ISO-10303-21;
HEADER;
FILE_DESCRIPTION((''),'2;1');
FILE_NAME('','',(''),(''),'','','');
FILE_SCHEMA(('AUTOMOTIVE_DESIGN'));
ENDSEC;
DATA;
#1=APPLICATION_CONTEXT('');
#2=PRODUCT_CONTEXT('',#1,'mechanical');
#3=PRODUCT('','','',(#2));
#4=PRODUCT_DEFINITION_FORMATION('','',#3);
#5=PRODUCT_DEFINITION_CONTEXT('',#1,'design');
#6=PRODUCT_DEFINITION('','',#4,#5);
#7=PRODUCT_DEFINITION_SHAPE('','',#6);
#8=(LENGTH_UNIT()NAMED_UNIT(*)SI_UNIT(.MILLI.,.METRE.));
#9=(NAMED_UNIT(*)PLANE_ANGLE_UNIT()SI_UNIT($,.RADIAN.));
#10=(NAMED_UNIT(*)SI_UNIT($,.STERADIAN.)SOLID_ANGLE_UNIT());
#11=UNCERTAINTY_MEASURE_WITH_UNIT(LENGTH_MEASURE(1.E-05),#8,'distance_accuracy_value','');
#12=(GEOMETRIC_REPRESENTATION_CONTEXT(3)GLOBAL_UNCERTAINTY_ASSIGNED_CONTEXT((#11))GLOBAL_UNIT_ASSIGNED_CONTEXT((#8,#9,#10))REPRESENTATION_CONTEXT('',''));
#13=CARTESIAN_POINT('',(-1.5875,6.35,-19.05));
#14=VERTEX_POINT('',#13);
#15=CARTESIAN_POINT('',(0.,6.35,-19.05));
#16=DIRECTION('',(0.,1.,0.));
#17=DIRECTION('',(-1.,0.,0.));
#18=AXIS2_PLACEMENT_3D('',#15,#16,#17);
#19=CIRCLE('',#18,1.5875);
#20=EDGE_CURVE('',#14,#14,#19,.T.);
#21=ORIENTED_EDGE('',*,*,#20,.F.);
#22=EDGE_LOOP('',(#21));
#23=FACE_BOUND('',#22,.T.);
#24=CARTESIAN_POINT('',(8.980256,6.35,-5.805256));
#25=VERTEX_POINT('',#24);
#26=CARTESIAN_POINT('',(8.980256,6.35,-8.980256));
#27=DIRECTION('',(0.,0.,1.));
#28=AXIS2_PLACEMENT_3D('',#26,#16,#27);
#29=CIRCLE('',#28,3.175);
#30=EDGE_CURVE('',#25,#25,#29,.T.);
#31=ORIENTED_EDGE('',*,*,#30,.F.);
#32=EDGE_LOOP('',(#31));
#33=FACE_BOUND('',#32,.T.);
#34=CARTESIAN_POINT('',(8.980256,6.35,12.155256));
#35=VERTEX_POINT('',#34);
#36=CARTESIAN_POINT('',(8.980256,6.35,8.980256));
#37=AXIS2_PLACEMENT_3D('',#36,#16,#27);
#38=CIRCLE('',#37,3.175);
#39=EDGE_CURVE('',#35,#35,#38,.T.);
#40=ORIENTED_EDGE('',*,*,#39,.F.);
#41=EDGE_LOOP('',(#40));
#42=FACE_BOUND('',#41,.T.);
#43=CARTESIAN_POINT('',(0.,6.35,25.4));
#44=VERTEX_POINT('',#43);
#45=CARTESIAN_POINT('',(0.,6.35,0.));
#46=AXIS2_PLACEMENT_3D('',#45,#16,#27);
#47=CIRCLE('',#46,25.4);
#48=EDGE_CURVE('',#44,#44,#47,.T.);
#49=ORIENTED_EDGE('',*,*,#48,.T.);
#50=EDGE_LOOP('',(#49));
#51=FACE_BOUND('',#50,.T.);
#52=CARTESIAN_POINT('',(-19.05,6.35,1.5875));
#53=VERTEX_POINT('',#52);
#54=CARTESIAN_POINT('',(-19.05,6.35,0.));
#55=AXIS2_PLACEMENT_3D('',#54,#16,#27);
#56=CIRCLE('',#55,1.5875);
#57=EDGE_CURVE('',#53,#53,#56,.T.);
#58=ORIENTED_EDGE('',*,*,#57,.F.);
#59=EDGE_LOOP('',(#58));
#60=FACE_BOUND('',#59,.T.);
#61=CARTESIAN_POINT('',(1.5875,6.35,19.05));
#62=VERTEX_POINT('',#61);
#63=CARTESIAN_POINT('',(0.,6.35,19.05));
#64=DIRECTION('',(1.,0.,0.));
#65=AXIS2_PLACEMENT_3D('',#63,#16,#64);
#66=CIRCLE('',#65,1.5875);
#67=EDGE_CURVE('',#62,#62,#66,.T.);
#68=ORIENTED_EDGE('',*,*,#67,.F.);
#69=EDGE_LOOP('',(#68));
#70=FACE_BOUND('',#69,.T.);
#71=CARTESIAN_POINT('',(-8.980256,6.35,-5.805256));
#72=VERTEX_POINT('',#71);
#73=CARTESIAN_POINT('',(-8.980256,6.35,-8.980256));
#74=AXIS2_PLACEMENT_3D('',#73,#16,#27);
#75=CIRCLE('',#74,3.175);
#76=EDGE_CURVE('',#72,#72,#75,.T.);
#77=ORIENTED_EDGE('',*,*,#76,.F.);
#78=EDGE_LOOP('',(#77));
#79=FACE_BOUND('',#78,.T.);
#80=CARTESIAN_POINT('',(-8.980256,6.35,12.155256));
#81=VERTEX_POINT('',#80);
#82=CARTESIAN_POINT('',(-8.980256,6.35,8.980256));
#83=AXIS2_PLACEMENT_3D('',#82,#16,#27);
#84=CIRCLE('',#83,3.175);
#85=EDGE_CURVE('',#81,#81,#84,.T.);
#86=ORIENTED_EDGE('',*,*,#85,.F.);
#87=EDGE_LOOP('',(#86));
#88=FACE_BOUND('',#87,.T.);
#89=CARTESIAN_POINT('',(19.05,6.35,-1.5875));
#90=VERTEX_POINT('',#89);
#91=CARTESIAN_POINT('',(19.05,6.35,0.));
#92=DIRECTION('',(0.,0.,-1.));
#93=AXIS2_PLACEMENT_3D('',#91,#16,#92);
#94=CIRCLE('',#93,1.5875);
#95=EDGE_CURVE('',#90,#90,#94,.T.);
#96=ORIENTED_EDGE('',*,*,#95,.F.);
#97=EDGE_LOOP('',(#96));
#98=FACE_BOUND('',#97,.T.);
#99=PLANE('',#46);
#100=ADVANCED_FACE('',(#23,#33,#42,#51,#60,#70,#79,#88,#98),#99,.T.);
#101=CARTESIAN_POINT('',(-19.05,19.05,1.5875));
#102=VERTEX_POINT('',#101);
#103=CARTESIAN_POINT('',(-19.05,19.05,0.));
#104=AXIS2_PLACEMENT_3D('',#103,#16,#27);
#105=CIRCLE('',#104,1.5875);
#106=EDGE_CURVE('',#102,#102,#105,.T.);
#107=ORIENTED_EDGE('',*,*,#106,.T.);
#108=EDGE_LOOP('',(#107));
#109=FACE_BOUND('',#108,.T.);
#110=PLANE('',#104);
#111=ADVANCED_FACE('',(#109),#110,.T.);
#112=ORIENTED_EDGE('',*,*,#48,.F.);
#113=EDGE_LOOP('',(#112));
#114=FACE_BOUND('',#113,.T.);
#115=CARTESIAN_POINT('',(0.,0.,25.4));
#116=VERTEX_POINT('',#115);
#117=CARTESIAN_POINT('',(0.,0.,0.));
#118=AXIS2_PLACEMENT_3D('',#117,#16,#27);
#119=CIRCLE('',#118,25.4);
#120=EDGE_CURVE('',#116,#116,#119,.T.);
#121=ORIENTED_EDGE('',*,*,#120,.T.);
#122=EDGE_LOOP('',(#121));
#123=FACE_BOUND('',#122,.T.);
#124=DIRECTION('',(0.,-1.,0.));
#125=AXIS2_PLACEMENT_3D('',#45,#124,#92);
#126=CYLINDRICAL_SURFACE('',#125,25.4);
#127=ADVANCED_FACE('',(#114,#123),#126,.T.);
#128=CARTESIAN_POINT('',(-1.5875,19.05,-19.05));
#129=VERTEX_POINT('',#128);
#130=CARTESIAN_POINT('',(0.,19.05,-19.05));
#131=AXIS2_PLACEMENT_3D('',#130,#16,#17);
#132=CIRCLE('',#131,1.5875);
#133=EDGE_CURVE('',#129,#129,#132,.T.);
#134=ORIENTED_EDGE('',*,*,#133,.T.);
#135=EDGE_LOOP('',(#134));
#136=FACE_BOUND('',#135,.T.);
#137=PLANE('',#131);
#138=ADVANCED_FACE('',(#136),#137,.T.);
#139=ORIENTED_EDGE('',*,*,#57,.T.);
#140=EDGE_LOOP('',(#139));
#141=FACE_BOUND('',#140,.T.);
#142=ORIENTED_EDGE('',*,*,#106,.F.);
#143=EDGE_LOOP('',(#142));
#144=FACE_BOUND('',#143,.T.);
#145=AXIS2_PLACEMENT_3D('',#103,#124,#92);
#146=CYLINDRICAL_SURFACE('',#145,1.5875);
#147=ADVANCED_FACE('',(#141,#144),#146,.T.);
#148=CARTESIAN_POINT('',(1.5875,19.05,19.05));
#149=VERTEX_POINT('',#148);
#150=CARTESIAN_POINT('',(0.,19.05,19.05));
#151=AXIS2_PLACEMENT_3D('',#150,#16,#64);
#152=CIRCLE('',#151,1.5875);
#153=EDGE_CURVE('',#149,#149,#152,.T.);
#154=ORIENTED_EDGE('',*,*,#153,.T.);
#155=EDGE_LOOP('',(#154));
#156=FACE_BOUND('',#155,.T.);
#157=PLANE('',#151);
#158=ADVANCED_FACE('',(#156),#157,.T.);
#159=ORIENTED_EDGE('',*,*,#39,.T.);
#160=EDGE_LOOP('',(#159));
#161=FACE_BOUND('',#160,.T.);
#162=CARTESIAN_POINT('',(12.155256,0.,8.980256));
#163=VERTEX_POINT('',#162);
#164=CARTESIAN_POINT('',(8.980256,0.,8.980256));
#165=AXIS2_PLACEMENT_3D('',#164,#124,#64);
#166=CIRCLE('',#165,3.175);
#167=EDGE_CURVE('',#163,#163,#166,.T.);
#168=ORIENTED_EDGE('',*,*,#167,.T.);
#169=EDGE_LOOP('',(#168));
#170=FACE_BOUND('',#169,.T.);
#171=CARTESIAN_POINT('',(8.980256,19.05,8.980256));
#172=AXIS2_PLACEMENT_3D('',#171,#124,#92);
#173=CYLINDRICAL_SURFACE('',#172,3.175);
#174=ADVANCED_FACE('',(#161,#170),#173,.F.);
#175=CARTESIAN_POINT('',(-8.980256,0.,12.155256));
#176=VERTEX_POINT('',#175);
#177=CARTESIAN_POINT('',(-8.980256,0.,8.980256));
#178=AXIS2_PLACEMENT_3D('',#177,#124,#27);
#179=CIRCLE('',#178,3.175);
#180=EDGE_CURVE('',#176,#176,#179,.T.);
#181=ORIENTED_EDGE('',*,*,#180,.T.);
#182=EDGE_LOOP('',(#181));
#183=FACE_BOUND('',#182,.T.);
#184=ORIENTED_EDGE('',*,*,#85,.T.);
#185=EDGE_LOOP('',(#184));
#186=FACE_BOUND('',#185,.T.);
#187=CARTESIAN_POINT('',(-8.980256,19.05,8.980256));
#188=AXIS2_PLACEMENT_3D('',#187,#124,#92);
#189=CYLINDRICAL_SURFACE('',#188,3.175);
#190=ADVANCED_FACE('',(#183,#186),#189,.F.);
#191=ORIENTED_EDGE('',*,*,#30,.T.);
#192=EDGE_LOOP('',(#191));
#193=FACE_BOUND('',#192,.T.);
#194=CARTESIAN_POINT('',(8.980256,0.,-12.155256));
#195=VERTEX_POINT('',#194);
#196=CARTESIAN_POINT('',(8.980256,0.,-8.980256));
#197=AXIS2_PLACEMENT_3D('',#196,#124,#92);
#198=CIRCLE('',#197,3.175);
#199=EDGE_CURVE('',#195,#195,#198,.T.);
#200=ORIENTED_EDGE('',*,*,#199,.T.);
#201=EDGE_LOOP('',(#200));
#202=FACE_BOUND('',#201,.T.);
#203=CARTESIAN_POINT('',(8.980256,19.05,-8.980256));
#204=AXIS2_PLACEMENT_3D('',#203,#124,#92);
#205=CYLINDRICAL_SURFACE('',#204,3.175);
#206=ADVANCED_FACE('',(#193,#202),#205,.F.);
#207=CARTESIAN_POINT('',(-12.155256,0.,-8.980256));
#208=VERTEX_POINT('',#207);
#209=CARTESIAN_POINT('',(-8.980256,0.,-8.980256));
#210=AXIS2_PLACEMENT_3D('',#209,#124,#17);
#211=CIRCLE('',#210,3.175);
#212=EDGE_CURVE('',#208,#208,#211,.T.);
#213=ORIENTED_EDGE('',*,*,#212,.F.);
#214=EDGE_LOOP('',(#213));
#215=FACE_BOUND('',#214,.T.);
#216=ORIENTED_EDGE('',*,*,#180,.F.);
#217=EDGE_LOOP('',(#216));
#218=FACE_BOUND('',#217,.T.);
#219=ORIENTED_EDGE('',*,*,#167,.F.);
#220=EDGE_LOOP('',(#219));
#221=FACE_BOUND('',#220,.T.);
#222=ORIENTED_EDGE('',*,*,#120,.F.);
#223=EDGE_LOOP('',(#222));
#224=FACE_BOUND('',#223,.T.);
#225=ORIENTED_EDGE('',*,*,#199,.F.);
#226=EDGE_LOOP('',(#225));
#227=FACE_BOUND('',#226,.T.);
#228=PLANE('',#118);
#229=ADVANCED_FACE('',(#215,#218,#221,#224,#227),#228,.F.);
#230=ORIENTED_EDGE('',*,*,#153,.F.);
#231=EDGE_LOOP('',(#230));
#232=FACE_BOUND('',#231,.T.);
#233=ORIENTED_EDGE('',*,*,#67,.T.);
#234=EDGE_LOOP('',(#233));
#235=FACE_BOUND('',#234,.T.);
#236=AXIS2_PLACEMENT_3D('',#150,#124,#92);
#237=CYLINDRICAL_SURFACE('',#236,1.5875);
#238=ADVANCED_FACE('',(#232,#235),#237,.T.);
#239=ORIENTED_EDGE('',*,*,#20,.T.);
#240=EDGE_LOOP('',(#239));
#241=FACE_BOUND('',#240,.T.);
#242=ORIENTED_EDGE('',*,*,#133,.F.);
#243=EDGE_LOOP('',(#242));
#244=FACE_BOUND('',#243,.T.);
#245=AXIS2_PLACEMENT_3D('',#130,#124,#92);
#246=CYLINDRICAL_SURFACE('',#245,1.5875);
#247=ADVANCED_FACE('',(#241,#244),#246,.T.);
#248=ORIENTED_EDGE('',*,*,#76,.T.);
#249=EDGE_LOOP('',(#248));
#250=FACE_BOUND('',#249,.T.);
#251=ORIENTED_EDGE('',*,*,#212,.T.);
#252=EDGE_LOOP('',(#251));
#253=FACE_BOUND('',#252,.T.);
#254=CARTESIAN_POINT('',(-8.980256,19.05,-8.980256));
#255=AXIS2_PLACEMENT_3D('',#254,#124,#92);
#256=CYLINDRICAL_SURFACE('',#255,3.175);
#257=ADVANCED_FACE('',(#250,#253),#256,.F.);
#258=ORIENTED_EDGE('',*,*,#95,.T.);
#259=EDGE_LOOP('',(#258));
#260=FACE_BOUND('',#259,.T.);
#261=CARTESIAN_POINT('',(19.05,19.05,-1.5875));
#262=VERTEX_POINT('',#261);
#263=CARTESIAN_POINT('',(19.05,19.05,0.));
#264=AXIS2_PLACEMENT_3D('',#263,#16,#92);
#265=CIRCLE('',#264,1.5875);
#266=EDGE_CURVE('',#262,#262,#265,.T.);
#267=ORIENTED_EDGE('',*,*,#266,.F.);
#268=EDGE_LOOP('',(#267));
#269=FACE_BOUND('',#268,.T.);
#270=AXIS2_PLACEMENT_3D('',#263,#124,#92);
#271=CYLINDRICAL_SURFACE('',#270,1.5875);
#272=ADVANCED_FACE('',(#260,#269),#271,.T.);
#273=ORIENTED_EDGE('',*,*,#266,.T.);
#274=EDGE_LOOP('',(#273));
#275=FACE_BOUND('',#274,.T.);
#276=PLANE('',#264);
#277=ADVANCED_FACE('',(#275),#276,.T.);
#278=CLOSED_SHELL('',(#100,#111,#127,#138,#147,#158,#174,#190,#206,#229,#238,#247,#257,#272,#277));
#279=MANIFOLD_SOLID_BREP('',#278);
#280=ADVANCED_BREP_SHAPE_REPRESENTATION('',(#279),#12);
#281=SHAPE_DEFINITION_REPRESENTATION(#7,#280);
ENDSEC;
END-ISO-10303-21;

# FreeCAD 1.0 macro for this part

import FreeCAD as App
import Part
import Sketcher
Q = App.Units.Quantity

doc = App.newDocument("Part")
body = doc.addObject("PartDesign::Body", "Body")

sketch1 = body.newObject("Sketcher::SketchObject", "Sketch")
sketch1.AttachmentSupport = (doc.getObject("XZ_Plane"), [""])
sketch1.MapMode = "FlatFace"
sketch1.addGeometry(Part.Circle(App.Vector(0, 0, 0), App.Vector(0, 0, 1), 25), False)
sketch1.addConstraint([
    Sketcher.Constraint("Coincident", 0, 3, -1, 1),
    Sketcher.Constraint("Diameter", 0, Q("2 in")),
])
pad1 = body.newObject("PartDesign::Pad", "Pad")
pad1.Profile = sketch1
pad1.Length = Q("0.25 in")
pad1.Reversed = True

sketch2 = body.newObject("Sketcher::SketchObject", "Sketch001")
sketch2.AttachmentSupport = (doc.getObject("XZ_Plane"), [""])
sketch2.MapMode = "FlatFace"
sketch2.AttachmentOffset = App.Placement(App.Vector(0, 0, -0.25 * 25.4), App.Rotation())
sketch2.addGeometry(Part.Circle(App.Vector(-19.1, 0, 0), App.Vector(0, 0, 1), 1.6), False)
sketch2.addConstraint([
    Sketcher.Constraint("PointOnObject", 0, 3, -1),
    Sketcher.Constraint("Diameter", 0, Q("0.125 in")),
    Sketcher.Constraint("DistanceX", 0, 3, -1, 1, Q("0.75 in")),
])
pad2 = body.newObject("PartDesign::Pad", "Pad001")
pad2.Profile = sketch2
pad2.Length = Q("0.5 in")
pad2.Reversed = True
doc.recompute()

polarpattern = body.newObject("PartDesign::PolarPattern", "PolarPattern")
polarpattern.Originals = [pad2]
polarpattern.Axis = (doc.getObject("Y_Axis"), [""])
polarpattern.Angle = 360
polarpattern.Occurrences = 4
body.Tip = polarpattern

sketch3 = body.newObject("Sketcher::SketchObject", "Sketch002")
sketch3.AttachmentSupport = (doc.getObject("XZ_Plane"), [""])
sketch3.MapMode = "FlatFace"
sketch3.addGeometry(Part.Circle(App.Vector(9, -9, 0), App.Vector(0, 0, 1), 3.2), False)
sketch3.addConstraint([
    Sketcher.Constraint("Diameter", 0, Q("0.25 in")),
    Sketcher.Constraint("DistanceX", -1, 1, 0, 3, Q("8.980256 mm")),
    Sketcher.Constraint("DistanceY", 0, 3, -1, 1, Q("8.980256 mm")),
])
pocket1 = body.newObject("PartDesign::Pocket", "Pocket")
pocket1.Profile = sketch3
pocket1.Type = "ThroughAll"
doc.recompute()

polarpattern2 = body.newObject("PartDesign::PolarPattern", "PolarPattern001")
polarpattern2.Originals = [pocket1]
polarpattern2.Axis = (doc.getObject("Y_Axis"), [""])
polarpattern2.Angle = 360
polarpattern2.Occurrences = 4
body.Tip = polarpattern2

doc.recompute()
